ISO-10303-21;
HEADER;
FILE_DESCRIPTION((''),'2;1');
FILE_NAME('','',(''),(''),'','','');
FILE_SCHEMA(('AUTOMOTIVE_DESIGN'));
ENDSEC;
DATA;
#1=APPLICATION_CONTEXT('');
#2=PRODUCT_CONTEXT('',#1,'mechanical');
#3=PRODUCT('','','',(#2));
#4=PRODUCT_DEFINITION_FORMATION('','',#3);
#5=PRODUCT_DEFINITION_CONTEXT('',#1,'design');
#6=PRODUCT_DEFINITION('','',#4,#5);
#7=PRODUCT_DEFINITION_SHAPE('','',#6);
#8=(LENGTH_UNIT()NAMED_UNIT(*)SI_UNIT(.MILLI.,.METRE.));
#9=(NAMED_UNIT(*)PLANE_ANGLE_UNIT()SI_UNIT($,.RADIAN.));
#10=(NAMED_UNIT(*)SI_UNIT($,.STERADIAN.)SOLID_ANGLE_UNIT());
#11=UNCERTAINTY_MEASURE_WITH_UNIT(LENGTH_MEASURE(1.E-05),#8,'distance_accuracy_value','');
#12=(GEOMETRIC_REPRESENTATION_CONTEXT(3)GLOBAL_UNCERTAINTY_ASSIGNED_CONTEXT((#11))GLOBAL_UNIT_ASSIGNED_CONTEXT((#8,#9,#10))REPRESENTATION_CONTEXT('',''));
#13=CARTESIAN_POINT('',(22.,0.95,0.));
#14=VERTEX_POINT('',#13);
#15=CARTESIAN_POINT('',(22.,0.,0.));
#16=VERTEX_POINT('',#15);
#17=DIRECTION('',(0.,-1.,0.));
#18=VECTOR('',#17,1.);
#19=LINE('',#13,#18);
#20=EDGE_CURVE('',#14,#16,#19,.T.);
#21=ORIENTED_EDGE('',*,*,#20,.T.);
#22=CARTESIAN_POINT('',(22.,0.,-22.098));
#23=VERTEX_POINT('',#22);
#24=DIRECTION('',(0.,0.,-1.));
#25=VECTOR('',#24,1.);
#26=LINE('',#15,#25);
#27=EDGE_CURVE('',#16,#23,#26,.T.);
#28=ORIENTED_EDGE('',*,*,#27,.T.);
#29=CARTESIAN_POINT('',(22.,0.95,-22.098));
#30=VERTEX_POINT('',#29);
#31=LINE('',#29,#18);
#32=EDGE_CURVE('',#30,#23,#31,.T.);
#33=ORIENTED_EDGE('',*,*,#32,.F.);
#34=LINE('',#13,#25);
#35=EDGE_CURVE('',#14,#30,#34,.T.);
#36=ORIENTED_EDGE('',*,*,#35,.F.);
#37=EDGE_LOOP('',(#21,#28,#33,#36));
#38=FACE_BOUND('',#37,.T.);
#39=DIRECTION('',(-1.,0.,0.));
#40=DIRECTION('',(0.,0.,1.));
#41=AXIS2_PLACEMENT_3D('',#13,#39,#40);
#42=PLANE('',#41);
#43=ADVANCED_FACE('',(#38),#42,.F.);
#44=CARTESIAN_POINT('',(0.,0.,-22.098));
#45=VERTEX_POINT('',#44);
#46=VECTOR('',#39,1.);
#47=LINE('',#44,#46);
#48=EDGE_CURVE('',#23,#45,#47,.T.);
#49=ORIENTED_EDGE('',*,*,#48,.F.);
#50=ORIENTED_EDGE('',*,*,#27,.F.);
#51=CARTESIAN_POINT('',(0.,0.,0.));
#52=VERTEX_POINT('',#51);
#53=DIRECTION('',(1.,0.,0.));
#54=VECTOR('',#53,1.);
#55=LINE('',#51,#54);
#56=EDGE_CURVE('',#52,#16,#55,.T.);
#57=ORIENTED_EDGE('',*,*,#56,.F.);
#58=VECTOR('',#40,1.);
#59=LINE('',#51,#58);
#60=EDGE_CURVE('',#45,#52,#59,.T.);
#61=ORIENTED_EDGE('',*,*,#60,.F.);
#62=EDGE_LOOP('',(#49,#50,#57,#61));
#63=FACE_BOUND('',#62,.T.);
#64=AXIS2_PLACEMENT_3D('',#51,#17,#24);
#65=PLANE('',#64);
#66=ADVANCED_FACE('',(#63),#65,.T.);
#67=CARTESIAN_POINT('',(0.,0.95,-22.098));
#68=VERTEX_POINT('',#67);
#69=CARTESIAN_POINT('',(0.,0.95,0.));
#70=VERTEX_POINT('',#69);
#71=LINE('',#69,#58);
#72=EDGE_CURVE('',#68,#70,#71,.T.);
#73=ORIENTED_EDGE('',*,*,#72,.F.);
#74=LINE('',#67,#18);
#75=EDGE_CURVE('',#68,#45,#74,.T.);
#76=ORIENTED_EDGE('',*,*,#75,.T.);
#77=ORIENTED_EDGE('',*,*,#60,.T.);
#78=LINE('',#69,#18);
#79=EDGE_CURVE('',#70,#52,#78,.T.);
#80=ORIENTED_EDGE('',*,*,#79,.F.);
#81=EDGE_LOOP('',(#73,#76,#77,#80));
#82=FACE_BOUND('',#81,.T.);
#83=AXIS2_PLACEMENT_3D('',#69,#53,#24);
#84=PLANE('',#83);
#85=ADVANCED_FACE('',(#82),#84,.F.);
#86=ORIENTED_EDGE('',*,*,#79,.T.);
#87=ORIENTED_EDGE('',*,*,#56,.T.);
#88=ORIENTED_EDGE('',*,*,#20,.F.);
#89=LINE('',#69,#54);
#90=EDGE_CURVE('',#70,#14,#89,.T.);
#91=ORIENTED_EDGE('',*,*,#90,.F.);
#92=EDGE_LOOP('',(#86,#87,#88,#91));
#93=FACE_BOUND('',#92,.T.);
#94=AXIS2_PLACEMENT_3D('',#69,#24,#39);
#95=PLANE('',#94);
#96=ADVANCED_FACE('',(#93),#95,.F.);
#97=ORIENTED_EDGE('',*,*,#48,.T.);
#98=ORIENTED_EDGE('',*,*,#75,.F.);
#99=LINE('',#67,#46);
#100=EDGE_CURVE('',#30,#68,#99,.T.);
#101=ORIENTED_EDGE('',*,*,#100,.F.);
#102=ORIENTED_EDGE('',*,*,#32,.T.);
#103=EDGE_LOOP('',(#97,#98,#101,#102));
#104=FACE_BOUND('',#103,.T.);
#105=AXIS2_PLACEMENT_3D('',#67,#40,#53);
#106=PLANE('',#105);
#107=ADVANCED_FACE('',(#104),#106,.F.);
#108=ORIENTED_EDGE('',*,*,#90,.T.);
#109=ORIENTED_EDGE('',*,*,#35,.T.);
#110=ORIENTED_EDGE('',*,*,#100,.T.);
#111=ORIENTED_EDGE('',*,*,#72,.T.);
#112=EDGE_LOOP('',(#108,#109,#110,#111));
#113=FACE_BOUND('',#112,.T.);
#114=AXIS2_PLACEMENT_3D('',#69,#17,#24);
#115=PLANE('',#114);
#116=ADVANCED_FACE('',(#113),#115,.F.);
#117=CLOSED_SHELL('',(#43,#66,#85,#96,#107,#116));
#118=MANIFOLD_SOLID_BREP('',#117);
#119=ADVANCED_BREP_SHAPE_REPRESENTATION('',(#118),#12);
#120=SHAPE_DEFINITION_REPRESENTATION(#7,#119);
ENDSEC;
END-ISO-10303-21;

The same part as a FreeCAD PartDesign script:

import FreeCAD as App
import Part
import Sketcher

doc = App.newDocument("Part")
body = doc.addObject("PartDesign::Body", "Body")

sketch1 = body.newObject("Sketcher::SketchObject", "Sketch")
sketch1.AttachmentSupport = (doc.getObject("XZ_Plane"), [""])
sketch1.MapMode = "FlatFace"
sketch1.addGeometry([
    Part.LineSegment(App.Vector(0, -22.098, 0), App.Vector(0, 0, 0)),
    Part.LineSegment(App.Vector(0, 0, 0), App.Vector(22, 0, 0)),
    Part.LineSegment(App.Vector(22, 0, 0), App.Vector(22, -22.098, 0)),
    Part.LineSegment(App.Vector(22, -22.098, 0), App.Vector(0, -22.098, 0)),
], False)
sketch1.addConstraint([
    Sketcher.Constraint("Coincident", 0, 2, 1, 1),
    Sketcher.Constraint("Coincident", 1, 2, 2, 1),
    Sketcher.Constraint("Coincident", 2, 2, 3, 1),
    Sketcher.Constraint("Coincident", 3, 2, 0, 1),
    Sketcher.Constraint("Vertical", 0),
    Sketcher.Constraint("Horizontal", 1),
    Sketcher.Constraint("Vertical", 2),
    Sketcher.Constraint("Horizontal", 3),
    Sketcher.Constraint("Coincident", 0, 2, -1, 1),
    Sketcher.Constraint("DistanceX", 1, 1, 1, 2, 22.0),
    Sketcher.Constraint("DistanceY", 0, 1, 0, 2, 22.098),
])
pad1 = body.newObject("PartDesign::Pad", "Pad")
pad1.Profile = sketch1
pad1.Length = 0.95
pad1.Reversed = True

doc.recompute()
